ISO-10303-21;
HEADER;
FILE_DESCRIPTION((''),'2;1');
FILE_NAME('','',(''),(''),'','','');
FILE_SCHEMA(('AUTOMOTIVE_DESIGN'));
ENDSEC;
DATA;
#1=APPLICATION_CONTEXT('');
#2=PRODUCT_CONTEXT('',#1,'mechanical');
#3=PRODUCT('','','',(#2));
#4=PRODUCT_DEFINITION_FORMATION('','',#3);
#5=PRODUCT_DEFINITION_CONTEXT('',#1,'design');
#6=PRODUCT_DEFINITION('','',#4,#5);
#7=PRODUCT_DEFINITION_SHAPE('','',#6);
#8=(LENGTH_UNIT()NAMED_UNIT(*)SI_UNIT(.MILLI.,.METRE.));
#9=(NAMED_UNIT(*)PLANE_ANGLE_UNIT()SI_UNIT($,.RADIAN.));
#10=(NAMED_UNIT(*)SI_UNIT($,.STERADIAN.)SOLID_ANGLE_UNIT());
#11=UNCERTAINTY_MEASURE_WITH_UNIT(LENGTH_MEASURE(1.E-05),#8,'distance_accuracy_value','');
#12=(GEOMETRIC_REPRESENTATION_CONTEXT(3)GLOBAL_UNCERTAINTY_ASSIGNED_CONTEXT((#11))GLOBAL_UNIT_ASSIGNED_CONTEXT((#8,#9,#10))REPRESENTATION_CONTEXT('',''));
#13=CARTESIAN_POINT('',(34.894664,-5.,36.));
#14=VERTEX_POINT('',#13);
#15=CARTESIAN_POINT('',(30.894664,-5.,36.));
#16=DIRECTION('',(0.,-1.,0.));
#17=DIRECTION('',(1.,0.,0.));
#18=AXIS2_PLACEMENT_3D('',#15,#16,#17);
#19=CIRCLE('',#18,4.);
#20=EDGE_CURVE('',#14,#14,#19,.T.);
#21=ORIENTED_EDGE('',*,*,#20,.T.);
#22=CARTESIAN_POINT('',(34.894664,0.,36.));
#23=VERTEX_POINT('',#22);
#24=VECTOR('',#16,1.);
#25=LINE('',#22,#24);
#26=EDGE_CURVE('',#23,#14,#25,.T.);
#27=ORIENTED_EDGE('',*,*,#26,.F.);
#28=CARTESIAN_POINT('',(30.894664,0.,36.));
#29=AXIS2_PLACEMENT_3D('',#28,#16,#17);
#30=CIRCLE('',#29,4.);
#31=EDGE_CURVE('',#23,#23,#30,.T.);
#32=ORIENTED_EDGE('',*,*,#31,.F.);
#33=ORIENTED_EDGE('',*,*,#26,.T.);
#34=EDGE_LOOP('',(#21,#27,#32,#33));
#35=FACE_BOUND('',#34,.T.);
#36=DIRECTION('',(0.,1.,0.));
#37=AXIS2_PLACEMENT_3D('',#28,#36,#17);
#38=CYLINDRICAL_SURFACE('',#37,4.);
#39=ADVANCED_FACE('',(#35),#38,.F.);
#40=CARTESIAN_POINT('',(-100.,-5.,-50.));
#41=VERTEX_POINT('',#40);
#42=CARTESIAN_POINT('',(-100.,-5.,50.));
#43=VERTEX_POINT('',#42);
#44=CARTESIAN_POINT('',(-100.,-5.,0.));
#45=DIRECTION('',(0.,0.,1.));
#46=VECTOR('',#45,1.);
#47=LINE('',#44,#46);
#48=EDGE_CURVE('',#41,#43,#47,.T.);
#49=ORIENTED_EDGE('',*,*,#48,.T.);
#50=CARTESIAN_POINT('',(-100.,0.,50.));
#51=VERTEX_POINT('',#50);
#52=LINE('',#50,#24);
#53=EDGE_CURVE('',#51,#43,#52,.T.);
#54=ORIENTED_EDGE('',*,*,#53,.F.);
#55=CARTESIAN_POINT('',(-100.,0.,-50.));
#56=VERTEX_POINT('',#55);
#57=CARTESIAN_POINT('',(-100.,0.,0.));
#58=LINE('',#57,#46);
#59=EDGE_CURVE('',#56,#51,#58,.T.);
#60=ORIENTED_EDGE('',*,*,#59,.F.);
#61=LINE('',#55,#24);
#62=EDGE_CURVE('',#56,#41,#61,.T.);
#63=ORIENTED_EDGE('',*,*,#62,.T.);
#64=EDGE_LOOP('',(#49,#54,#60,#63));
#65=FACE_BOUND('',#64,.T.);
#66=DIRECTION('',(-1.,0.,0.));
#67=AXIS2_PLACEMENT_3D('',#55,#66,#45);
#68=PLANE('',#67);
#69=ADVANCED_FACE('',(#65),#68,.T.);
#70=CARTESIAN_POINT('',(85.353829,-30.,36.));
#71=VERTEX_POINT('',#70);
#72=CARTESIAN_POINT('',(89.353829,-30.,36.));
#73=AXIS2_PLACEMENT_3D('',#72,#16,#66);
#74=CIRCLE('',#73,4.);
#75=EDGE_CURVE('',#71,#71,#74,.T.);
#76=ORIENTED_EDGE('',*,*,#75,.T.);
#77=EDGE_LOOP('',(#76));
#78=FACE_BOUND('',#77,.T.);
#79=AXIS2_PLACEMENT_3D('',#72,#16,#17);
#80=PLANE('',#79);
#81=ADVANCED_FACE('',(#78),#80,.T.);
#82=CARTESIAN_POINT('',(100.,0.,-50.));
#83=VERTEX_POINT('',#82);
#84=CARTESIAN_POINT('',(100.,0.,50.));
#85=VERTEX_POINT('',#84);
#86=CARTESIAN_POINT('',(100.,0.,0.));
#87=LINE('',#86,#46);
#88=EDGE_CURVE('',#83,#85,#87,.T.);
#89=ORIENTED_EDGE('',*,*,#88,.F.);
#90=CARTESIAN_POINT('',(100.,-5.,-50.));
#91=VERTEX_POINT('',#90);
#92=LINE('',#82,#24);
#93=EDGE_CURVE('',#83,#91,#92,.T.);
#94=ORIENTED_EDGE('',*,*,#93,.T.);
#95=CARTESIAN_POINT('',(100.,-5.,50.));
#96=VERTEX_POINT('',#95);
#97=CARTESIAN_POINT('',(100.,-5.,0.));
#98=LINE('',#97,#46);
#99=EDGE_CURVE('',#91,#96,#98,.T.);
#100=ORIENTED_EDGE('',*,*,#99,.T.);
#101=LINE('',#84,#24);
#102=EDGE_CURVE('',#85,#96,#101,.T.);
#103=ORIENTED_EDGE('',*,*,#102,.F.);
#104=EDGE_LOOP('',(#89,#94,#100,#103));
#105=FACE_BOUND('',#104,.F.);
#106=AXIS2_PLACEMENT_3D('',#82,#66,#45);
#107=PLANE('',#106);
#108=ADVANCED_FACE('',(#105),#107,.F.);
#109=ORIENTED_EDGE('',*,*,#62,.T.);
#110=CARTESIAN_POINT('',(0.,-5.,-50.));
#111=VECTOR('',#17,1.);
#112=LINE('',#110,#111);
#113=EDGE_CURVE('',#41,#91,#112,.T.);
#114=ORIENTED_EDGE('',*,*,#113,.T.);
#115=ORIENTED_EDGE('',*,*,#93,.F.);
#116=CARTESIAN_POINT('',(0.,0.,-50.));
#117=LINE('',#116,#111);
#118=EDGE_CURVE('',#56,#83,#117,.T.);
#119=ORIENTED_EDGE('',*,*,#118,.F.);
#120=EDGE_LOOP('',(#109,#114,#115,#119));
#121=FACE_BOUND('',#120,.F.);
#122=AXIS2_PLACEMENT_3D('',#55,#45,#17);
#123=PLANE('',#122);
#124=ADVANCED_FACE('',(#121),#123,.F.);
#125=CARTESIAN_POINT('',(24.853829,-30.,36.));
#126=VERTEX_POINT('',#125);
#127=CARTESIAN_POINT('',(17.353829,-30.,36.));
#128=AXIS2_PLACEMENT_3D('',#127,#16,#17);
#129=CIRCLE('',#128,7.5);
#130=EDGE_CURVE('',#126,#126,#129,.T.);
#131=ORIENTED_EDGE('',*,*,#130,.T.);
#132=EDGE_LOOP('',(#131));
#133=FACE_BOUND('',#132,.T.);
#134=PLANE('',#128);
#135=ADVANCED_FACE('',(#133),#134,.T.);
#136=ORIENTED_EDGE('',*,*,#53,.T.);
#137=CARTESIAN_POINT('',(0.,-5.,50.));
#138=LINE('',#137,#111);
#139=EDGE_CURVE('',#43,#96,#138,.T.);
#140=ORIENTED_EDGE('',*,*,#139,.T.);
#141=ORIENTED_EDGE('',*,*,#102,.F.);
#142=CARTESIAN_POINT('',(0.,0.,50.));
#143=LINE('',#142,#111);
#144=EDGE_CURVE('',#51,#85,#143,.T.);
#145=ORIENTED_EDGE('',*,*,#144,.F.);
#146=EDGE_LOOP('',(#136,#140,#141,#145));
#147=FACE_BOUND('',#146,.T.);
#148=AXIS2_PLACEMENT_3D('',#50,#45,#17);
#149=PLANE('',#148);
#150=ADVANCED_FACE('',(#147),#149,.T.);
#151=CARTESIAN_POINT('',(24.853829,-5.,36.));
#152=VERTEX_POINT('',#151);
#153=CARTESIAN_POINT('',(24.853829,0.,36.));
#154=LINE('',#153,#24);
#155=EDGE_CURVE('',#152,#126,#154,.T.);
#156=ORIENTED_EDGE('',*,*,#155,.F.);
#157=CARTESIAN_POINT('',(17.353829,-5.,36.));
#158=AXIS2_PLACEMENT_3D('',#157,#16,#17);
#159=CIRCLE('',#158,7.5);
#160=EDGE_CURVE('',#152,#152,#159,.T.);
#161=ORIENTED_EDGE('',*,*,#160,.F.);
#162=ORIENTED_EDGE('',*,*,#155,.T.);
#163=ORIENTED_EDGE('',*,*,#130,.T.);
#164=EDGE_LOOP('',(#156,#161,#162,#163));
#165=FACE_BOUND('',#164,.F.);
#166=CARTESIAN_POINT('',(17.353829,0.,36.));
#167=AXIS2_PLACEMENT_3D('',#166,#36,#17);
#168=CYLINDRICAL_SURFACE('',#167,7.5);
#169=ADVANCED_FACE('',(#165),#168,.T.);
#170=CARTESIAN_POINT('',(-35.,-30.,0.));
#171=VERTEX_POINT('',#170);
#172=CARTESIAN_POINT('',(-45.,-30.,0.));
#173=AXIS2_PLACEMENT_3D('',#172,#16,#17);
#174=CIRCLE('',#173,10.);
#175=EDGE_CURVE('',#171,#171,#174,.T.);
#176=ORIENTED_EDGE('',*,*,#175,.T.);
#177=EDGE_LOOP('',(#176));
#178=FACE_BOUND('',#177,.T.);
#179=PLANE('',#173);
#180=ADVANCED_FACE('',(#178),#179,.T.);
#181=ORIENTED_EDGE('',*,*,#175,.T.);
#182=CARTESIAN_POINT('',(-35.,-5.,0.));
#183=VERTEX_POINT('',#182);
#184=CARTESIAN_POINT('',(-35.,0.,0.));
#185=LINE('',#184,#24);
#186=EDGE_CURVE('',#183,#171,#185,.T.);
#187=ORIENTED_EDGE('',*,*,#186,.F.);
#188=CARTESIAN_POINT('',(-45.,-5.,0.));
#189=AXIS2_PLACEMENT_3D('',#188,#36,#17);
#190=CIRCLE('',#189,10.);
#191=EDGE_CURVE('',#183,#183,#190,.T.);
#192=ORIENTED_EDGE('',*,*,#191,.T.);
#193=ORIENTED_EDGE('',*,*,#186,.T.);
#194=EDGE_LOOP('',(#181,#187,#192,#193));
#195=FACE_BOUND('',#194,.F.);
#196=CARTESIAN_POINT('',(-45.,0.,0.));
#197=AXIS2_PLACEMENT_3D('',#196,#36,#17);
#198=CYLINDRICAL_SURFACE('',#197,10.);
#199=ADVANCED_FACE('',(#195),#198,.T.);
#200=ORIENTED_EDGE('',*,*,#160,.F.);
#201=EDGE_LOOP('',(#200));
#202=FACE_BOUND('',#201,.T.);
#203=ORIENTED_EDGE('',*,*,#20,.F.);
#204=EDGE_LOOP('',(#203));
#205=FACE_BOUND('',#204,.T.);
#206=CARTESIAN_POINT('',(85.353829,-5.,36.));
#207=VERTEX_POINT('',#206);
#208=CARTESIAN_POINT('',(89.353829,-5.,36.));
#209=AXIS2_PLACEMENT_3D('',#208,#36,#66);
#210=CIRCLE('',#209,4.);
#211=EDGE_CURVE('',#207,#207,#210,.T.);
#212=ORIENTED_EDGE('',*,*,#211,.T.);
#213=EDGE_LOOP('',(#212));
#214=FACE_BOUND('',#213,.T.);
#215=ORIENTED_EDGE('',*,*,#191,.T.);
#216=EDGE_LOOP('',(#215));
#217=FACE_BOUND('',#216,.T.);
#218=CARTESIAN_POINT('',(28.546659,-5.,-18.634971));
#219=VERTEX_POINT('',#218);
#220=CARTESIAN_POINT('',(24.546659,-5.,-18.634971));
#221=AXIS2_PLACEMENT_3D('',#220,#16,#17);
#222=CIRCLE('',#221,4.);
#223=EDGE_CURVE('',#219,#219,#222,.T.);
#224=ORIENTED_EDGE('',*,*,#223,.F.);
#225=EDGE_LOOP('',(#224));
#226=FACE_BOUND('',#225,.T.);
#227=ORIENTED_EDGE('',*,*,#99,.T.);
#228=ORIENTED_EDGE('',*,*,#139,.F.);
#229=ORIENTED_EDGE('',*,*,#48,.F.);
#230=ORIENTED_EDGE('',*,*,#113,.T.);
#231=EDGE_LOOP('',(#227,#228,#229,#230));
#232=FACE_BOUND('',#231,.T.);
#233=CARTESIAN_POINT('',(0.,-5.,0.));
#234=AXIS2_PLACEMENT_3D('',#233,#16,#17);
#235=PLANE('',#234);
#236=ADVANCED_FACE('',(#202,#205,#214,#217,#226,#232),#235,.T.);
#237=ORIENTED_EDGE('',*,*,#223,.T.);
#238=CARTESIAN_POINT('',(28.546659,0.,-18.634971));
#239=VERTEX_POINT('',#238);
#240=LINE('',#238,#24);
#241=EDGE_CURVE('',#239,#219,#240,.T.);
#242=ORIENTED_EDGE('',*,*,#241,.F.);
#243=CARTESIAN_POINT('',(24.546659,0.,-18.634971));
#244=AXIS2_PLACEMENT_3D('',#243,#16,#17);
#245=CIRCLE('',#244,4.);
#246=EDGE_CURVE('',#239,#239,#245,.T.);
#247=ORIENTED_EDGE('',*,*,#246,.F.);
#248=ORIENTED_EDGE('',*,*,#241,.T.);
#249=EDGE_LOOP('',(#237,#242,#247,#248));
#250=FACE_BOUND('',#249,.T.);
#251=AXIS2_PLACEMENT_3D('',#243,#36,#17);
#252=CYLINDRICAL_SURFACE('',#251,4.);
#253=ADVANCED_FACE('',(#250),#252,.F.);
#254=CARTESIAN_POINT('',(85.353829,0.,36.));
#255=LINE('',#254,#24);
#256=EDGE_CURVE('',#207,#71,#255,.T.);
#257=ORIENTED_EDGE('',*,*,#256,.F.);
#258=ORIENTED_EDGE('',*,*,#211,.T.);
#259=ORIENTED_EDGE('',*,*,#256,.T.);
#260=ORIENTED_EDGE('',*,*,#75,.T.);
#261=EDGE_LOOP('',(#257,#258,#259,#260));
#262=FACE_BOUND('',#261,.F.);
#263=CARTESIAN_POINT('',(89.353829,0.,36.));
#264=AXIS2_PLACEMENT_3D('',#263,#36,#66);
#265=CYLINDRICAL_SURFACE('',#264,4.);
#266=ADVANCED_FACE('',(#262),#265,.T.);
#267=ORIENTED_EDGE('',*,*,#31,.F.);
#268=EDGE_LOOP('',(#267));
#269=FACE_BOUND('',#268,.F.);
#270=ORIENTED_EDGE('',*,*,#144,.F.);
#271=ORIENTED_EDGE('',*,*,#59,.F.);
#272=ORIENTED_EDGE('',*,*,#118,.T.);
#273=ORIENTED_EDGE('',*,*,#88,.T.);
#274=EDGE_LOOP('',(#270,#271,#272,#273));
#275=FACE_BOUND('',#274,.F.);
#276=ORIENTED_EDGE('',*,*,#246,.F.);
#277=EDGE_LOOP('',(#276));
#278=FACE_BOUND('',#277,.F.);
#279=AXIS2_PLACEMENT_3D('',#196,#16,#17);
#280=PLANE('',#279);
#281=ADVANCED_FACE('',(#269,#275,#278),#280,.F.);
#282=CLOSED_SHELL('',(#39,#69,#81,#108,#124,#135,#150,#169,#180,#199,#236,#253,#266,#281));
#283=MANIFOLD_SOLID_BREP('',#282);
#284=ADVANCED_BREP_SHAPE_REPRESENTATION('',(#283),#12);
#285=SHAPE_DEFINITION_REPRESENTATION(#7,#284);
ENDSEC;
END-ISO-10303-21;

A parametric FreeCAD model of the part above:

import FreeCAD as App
import Part
import Sketcher

doc = App.newDocument("Part")
params = doc.addObject("Spreadsheet::Sheet", "Params")
for row, (alias, value) in enumerate([
    ("sketch1_diameter", "8 mm"),
    ("sketch1_diameter2", "15 mm"),
    ("sketch1_width", "200 mm"),
    ("sketch1_height", "100 mm"),
    ("pad1_length", "5 mm"),
    ("sketch2_diameter", "20 mm"),
    ("sketch2_diameter2", "15 mm"),
    ("sketch2_diameter3", "8 mm"),
    ("pad2_length", "30 mm"),
], start=1):
    params.set(f"A{row}", alias)
    params.set(f"B{row}", "=" + value)
    params.setAlias(f"B{row}", alias)

body = doc.addObject("PartDesign::Body", "Body")

# Sketch on XZ plane
sketch1 = body.newObject("Sketcher::SketchObject", "Sketch")
sketch1.AttachmentSupport = (doc.getObject("XZ_Plane"), [""])
sketch1.MapMode = "FlatFace"
sketch1.addGeometry(Part.LineSegment(App.Vector(-100, 50, 0), App.Vector(-100, -50, 0)), False)
sketch1.addGeometry(Part.LineSegment(App.Vector(-100, -50, 0), App.Vector(100, -50, 0)), False)
sketch1.addGeometry(Part.LineSegment(App.Vector(100, -50, 0), App.Vector(100, 50, 0)), False)
sketch1.addGeometry(Part.LineSegment(App.Vector(100, 50, 0), App.Vector(-100, 50, 0)), False)
sketch1.addGeometry(Part.Circle(App.Vector(24.5, -18.6, 0), App.Vector(0, 0, 1), 4), False)
sketch1.addGeometry(Part.Circle(App.Vector(17.4, 36, 0), App.Vector(0, 0, 1), 7.5), False)
sketch1.addGeometry(Part.Circle(App.Vector(30.9, 36, 0), App.Vector(0, 0, 1), 4), False)
sketch1.addGeometry(Part.Circle(App.Vector(89.4, 36, 0), App.Vector(0, 0, 1), 4), False)
sketch1.addConstraint(Sketcher.Constraint("Coincident", 0, 2, 1, 1))
sketch1.addConstraint(Sketcher.Constraint("Coincident", 1, 2, 2, 1))
sketch1.addConstraint(Sketcher.Constraint("Coincident", 2, 2, 3, 1))
sketch1.addConstraint(Sketcher.Constraint("Coincident", 3, 2, 0, 1))
sketch1.addConstraint(Sketcher.Constraint("Vertical", 0))
sketch1.addConstraint(Sketcher.Constraint("Horizontal", 1))
sketch1.addConstraint(Sketcher.Constraint("Vertical", 2))
sketch1.addConstraint(Sketcher.Constraint("Horizontal", 3))
sketch1.addConstraint(Sketcher.Constraint("Equal", 4, 6))
sketch1.addConstraint(Sketcher.Constraint("Equal", 6, 7))
sketch1.addConstraint(Sketcher.Constraint("Symmetric", 0, 2, 2, 2, -1, 1))
sketch1.addConstraint(Sketcher.Constraint("Horizontal", 5, 3, 6, 3))
sketch1.addConstraint(Sketcher.Constraint("Horizontal", 6, 3, 7, 3))
sketch1.addConstraint(Sketcher.Constraint("Diameter", 4, 8.0))
sketch1.addConstraint(Sketcher.Constraint("Diameter", 5, 15.0))
sketch1.addConstraint(Sketcher.Constraint("DistanceX", 1, 1, 1, 2, 200.0))
sketch1.addConstraint(Sketcher.Constraint("DistanceY", 0, 2, 0, 1, 100.0))
sketch1.addConstraint(Sketcher.Constraint("DistanceY", -1, 1, 5, 3, 36.0))
sketch1.addConstraint(Sketcher.Constraint("DistanceX", 5, 3, 7, 3, 72.0))
sketch1.addConstraint(Sketcher.Constraint("DistanceX", -1, 1, 4, 3, 24.546659))
sketch1.addConstraint(Sketcher.Constraint("DistanceY", 4, 3, -1, 1, 18.634971))
sketch1.addConstraint(Sketcher.Constraint("DistanceX", -1, 1, 5, 3, 17.353829))
sketch1.addConstraint(Sketcher.Constraint("DistanceX", -1, 1, 6, 3, 30.894664))
sketch1.setExpression("Constraints[13]", "Params.sketch1_diameter")
sketch1.setExpression("Constraints[14]", "Params.sketch1_diameter2")
sketch1.setExpression("Constraints[15]", "Params.sketch1_width")
sketch1.setExpression("Constraints[16]", "Params.sketch1_height")
pad1 = body.newObject("PartDesign::Pad", "Pad")
pad1.Profile = sketch1
pad1.setExpression("Length", "Params.pad1_length")

# Sketch on XZ plane
sketch2 = body.newObject("Sketcher::SketchObject", "Sketch001")
sketch2.AttachmentSupport = (doc.getObject("XZ_Plane"), [""])
sketch2.MapMode = "FlatFace"
sketch2.addGeometry(Part.Circle(App.Vector(-45, 0, 0), App.Vector(0, 0, 1), 10), False)
sketch2.addGeometry(Part.Circle(App.Vector(17.4, 36, 0), App.Vector(0, 0, 1), 7.5), False)
sketch2.addGeometry(Part.Circle(App.Vector(89.4, 36, 0), App.Vector(0, 0, 1), 4), False)
sketch2.addConstraint(Sketcher.Constraint("PointOnObject", 0, 3, -1))
sketch2.addConstraint(Sketcher.Constraint("Horizontal", 1, 3, 2, 3))
sketch2.addConstraint(Sketcher.Constraint("Diameter", 0, 20.0))
sketch2.addConstraint(Sketcher.Constraint("Diameter", 1, 15.0))
sketch2.addConstraint(Sketcher.Constraint("Diameter", 2, 8.0))
sketch2.addConstraint(Sketcher.Constraint("DistanceX", 0, 3, -1, 1, 45.0))
sketch2.addConstraint(Sketcher.Constraint("DistanceY", -1, 1, 1, 3, 36.0))
sketch2.addConstraint(Sketcher.Constraint("DistanceX", 1, 3, 2, 3, 72.0))
sketch2.addConstraint(Sketcher.Constraint("DistanceX", -1, 1, 1, 3, 17.353829))
sketch2.setExpression("Constraints[2]", "Params.sketch2_diameter")
sketch2.setExpression("Constraints[3]", "Params.sketch2_diameter2")
sketch2.setExpression("Constraints[4]", "Params.sketch2_diameter3")
pad2 = body.newObject("PartDesign::Pad", "Pad001")
pad2.Profile = sketch2
pad2.setExpression("Length", "Params.pad2_length")

doc.recompute()
